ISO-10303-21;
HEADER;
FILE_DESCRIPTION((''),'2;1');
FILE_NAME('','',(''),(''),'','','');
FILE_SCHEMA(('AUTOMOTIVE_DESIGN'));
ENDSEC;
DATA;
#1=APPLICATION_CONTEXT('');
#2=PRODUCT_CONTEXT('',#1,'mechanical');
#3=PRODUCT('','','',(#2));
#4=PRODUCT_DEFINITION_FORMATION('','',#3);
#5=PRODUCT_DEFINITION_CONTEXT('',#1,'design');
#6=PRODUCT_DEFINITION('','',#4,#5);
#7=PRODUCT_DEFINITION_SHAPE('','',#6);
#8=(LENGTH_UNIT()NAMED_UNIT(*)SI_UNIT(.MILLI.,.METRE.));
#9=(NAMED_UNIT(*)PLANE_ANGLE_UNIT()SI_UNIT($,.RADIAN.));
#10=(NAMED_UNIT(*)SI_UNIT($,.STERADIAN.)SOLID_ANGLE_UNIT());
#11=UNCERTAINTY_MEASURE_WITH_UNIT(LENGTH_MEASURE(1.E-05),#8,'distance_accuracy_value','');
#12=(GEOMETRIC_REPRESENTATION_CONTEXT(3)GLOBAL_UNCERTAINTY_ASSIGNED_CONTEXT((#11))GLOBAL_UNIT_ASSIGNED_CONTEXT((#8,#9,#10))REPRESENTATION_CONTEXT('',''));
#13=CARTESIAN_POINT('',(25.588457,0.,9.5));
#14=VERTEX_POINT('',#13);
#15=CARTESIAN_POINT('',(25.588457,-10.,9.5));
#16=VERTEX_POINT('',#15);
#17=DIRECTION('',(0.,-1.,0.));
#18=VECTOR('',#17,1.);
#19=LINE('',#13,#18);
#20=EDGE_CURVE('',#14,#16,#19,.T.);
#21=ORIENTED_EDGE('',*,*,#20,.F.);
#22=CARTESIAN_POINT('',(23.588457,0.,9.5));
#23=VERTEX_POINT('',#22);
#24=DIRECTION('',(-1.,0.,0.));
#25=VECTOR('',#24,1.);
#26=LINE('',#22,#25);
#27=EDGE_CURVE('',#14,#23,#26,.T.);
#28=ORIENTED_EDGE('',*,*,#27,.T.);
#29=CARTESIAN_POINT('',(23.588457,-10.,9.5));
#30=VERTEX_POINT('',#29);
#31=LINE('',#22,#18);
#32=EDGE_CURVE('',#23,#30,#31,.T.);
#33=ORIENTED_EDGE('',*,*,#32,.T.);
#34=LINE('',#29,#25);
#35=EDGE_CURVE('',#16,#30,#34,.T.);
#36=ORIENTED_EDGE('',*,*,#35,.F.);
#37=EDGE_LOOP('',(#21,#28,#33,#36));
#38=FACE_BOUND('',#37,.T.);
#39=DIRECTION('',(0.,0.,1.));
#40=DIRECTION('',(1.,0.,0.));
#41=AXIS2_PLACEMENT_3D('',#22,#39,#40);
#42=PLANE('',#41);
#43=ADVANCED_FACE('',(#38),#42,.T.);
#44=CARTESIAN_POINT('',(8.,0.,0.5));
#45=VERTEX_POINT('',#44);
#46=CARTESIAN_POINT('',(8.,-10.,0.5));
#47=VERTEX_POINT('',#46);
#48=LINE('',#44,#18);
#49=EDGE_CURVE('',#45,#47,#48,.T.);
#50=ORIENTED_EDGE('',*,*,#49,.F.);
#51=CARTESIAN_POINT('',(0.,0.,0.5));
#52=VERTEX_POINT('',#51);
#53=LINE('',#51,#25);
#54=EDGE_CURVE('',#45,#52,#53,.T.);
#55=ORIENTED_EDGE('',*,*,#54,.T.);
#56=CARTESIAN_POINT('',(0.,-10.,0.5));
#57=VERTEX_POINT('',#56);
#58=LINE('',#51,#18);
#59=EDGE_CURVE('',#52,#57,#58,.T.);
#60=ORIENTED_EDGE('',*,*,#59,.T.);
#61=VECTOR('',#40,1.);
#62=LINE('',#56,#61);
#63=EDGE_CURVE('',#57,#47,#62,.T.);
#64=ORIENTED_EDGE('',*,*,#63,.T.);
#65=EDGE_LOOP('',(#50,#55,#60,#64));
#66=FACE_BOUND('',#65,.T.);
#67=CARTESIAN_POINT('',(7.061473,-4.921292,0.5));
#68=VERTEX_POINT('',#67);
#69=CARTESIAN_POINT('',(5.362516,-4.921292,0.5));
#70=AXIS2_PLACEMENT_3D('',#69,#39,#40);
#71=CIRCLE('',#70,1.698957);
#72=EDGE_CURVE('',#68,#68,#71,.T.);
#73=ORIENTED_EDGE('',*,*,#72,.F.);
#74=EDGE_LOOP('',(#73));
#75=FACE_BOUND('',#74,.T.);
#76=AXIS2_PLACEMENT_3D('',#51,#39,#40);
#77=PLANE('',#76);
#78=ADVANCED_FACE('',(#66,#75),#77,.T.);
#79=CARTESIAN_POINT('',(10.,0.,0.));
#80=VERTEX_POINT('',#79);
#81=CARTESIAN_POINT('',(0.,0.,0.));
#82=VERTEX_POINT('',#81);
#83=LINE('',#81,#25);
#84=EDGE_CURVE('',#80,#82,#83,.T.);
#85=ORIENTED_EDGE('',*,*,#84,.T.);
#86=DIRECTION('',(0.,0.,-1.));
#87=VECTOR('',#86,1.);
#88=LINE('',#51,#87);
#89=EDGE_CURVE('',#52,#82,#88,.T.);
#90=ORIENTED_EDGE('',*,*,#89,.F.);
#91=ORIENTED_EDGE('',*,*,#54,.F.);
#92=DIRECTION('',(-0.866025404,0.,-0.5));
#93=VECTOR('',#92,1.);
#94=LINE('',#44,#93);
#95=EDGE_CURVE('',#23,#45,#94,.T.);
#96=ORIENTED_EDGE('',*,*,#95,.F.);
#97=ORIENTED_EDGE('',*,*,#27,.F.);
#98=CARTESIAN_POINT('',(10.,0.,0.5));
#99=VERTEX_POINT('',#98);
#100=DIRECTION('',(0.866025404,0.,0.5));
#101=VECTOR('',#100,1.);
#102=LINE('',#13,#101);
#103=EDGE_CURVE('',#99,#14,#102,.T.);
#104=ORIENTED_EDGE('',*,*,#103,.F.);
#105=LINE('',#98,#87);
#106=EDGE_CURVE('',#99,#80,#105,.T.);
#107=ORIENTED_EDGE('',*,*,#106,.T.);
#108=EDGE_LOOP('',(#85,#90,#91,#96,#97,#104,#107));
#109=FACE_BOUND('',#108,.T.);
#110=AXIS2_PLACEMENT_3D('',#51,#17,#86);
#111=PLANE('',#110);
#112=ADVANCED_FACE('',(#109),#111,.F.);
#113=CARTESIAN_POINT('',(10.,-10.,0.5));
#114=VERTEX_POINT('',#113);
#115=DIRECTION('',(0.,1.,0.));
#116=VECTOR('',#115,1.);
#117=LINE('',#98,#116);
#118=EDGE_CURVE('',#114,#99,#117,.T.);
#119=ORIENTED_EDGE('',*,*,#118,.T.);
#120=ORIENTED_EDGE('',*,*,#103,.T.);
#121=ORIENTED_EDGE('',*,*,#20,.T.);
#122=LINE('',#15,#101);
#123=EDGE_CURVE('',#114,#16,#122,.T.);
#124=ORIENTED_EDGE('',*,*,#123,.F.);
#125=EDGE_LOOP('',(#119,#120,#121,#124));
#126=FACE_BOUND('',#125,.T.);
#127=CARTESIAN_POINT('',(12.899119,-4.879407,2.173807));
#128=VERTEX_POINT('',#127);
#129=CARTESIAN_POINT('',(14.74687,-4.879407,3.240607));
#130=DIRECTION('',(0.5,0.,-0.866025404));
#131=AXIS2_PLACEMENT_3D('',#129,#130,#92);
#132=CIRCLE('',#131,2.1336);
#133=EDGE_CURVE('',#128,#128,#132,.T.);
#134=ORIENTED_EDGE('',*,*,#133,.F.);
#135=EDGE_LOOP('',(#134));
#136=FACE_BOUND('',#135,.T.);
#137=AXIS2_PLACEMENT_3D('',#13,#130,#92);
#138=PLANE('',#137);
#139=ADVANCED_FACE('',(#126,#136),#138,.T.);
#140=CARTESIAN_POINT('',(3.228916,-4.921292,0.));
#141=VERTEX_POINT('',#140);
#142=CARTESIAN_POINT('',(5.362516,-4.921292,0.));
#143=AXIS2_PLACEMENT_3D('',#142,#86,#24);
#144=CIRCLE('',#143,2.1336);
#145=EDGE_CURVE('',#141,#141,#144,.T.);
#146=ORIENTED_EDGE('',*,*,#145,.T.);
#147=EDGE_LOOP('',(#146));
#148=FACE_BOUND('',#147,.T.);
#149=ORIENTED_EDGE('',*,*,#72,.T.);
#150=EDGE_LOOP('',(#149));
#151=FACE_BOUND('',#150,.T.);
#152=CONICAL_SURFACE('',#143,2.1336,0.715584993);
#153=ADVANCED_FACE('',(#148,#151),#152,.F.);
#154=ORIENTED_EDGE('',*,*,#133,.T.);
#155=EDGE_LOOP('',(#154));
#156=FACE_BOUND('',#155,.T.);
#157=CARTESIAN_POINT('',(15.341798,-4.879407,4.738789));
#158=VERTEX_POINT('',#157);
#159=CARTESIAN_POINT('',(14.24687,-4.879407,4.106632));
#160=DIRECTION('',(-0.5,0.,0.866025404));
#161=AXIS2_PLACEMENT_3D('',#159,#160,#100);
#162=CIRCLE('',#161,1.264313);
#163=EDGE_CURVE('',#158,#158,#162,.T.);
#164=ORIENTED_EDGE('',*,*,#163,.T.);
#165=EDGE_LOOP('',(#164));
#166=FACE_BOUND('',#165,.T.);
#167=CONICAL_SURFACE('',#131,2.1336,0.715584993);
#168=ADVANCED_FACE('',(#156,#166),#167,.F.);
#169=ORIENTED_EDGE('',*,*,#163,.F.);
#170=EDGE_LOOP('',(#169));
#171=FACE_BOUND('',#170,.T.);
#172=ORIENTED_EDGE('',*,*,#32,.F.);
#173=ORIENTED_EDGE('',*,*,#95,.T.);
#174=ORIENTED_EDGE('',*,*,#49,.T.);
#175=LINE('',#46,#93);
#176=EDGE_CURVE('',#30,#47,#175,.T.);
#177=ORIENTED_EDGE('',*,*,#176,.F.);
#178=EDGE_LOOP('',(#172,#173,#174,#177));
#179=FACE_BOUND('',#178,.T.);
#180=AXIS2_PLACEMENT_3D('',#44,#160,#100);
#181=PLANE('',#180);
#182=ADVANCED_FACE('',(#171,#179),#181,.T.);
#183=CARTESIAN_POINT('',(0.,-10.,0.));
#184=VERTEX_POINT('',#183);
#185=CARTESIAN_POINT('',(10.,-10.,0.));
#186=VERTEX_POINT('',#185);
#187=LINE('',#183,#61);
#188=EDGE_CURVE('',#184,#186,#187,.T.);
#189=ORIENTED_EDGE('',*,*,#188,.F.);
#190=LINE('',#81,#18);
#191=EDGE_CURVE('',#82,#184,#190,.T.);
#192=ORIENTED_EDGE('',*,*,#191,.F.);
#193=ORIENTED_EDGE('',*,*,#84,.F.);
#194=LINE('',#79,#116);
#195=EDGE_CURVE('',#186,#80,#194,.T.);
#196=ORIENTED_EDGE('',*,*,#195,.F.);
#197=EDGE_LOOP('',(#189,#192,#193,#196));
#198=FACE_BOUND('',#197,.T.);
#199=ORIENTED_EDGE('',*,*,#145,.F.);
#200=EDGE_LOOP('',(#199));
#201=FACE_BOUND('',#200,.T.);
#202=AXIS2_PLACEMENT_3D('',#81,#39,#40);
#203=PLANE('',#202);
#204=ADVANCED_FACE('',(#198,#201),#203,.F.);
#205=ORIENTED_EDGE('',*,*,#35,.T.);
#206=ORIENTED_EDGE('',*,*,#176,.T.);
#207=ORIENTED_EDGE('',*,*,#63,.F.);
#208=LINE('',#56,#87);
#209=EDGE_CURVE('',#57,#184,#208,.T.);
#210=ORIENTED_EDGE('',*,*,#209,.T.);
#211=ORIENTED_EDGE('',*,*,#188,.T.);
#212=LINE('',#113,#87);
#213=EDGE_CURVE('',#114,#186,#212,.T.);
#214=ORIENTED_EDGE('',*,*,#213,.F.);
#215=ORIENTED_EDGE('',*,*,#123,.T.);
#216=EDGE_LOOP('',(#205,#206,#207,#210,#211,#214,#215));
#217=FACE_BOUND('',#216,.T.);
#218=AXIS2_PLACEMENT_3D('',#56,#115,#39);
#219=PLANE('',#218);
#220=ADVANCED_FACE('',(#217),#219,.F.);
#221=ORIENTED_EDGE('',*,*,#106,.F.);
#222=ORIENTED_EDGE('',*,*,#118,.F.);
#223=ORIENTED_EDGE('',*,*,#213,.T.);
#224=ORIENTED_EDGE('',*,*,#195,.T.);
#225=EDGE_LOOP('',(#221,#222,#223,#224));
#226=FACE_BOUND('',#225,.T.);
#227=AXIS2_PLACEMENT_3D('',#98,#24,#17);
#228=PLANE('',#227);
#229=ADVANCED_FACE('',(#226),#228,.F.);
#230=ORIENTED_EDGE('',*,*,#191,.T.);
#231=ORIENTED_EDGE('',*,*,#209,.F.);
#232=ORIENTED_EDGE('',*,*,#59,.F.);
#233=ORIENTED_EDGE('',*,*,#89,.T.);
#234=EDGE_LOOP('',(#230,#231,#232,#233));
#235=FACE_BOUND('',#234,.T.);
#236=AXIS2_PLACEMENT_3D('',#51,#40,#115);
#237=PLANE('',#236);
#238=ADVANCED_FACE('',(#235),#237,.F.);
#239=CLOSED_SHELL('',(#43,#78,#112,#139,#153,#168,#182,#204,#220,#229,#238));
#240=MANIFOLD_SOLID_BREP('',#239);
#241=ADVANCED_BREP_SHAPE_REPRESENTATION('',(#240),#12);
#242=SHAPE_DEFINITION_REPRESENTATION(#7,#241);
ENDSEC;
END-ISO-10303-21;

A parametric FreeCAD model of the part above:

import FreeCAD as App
import Part
import Sketcher
from FreeCAD import Vector
Q = App.Units.Quantity

doc = App.newDocument("Part")
params = doc.addObject("Spreadsheet::Sheet", "Params")
for row, (alias, value) in enumerate([
    ("sketch1_width", "10 mm"),
    ("pad1_length", "0.5 mm"),
    ("sketch2_width", "2 mm"),
    ("sketch2_length", "18 mm"),
    ("pad2_length", "10 mm"),
    ("hole_diameter", "2.0574 mm"),
    ("hole_csink_diameter", "4.2672 mm"),
    ("hole2_diameter", "2.0574 mm"),
    ("hole2_csink_diameter", "4.2672 mm"),
], start=1):
    params.set(f"A{row}", alias)
    params.set(f"B{row}", "=" + value)
    params.setAlias(f"B{row}", alias)

body = doc.addObject("PartDesign::Body", "Body")

# Sketch on XY plane
sketch1 = body.newObject("Sketcher::SketchObject", "Sketch")
sketch1.AttachmentSupport = (doc.getObject("XY_Plane"), [""])
sketch1.MapMode = "FlatFace"
sketch1.addGeometry(Part.LineSegment(Vector(0, 0, 0), Vector(0, -10, 0)), False)
sketch1.addGeometry(Part.LineSegment(Vector(0, -10, 0), Vector(10, -10, 0)), False)
sketch1.addGeometry(Part.LineSegment(Vector(10, -10, 0), Vector(10, 0, 0)), False)
sketch1.addGeometry(Part.LineSegment(Vector(10, 0, 0), Vector(0, 0, 0)), False)
sketch1.addConstraint(Sketcher.Constraint("Coincident", 0, 2, 1, 1))
sketch1.addConstraint(Sketcher.Constraint("Coincident", 1, 2, 2, 1))
sketch1.addConstraint(Sketcher.Constraint("Coincident", 2, 2, 3, 1))
sketch1.addConstraint(Sketcher.Constraint("Coincident", 3, 2, 0, 1))
sketch1.addConstraint(Sketcher.Constraint("Vertical", 0))
sketch1.addConstraint(Sketcher.Constraint("Horizontal", 1))
sketch1.addConstraint(Sketcher.Constraint("Vertical", 2))
sketch1.addConstraint(Sketcher.Constraint("Horizontal", 3))
sketch1.addConstraint(Sketcher.Constraint("Coincident", 3, 2, -1, 1))
sketch1.addConstraint(Sketcher.Constraint("Equal", 3, 0))
sketch1.addConstraint(Sketcher.Constraint("DistanceX", 1, 1, 1, 2, 10.0))
sketch1.setExpression("Constraints[10]", "Params.sketch1_width")
pad1 = body.newObject("PartDesign::Pad", "Pad")
pad1.Profile = sketch1
pad1.setExpression("Length", "Params.pad1_length")

# Sketch on XZ plane
sketch2 = body.newObject("Sketcher::SketchObject", "Sketch001")
sketch2.AttachmentSupport = (doc.getObject("XZ_Plane"), [""])
sketch2.MapMode = "FlatFace"
sketch2.AttachmentOffset = App.Placement(Vector(0, 0, 10), App.Rotation())
sketch2.addGeometry(Part.LineSegment(Vector(23.588457, 9.5, 0), Vector(8, 0.5, 0)), False)
sketch2.addGeometry(Part.LineSegment(Vector(8, 0.5, 0), Vector(10, 0.5, 0)), False)
sketch2.addGeometry(Part.LineSegment(Vector(10, 0.5, 0), Vector(25.588457, 9.5, 0)), False)
sketch2.addGeometry(Part.LineSegment(Vector(25.588457, 9.5, 0), Vector(23.588457, 9.5, 0)), False)
sketch2.addConstraint(Sketcher.Constraint("Coincident", 0, 2, 1, 1))
sketch2.addConstraint(Sketcher.Constraint("Coincident", 1, 2, 2, 1))
sketch2.addConstraint(Sketcher.Constraint("Coincident", 2, 2, 3, 1))
sketch2.addConstraint(Sketcher.Constraint("Coincident", 3, 2, 0, 1))
sketch2.addConstraint(Sketcher.Constraint("Horizontal", 1))
sketch2.addConstraint(Sketcher.Constraint("Horizontal", 3))
sketch2.addConstraint(Sketcher.Constraint("Parallel", 0, 2))
sketch2.addConstraint(Sketcher.Constraint("DistanceX", 1, 1, 1, 2, 2.0))
sketch2.addConstraint(Sketcher.Constraint("Angle", 0, Q("-150 deg")))
sketch2.addConstraint(Sketcher.Constraint("Distance", 0, 18.0))
sketch2.addConstraint(Sketcher.Constraint("DistanceX", -1, 1, 0, 2, 8.0))
sketch2.addConstraint(Sketcher.Constraint("DistanceY", -1, 1, 0, 2, 0.5))
sketch2.setExpression("Constraints[7]", "Params.sketch2_width")
sketch2.setExpression("Constraints[9]", "Params.sketch2_length")
pad2 = body.newObject("PartDesign::Pad", "Pad001")
pad2.Profile = sketch2
pad2.setExpression("Length", "Params.pad2_length")
pad2.Reversed = True

# Sketch on XY plane
sketch3 = body.newObject("Sketcher::SketchObject", "Sketch002")
sketch3.AttachmentSupport = (doc.getObject("XY_Plane"), [""])
sketch3.MapMode = "FlatFace"
sketch3.addGeometry(Part.Circle(Vector(5.362516, -4.921292, 0), Vector(0, 0, 1), 1.0287), False)
sketch3.addConstraint(Sketcher.Constraint("Diameter", 0, 2.0574))
sketch3.addConstraint(Sketcher.Constraint("DistanceX", -1, 1, 0, 3, 5.362516))
sketch3.addConstraint(Sketcher.Constraint("DistanceY", 0, 3, -1, 1, 4.921292))
doc.recompute()
hole = body.newObject("PartDesign::Hole", "Hole")
hole.Profile = sketch3
hole.ThreadType = "None"
hole.setExpression("Diameter", "Params.hole_diameter")
hole.DepthType = "ThroughAll"
hole.HoleCutType = "Countersink"
hole.setExpression("HoleCutDiameter", "Params.hole_csink_diameter")
hole.HoleCutCountersinkAngle = 82
hole.Reversed = True

# Sketch on an angled plane
sketch4 = body.newObject("Sketcher::SketchObject", "Sketch003")
sketch4.Placement = App.Placement(Vector(2.283494, 0, -3.955127), App.Rotation(Vector(-0.866025404, 0, -0.5), Vector(0, 1, 0), Vector(0.5, 0, -0.866025404), "ZXY"))
sketch4.addGeometry(Part.Circle(Vector(-14.391468, -4.879407, 0), Vector(0, 0, 1), 1.0287), False)
sketch4.addConstraint(Sketcher.Constraint("Diameter", 0, 2.0574))
sketch4.addConstraint(Sketcher.Constraint("DistanceX", 0, 3, -1, 1, 14.391468))
sketch4.addConstraint(Sketcher.Constraint("DistanceY", 0, 3, -1, 1, 4.879407))
doc.recompute()
hole2 = body.newObject("PartDesign::Hole", "Hole001")
hole2.Profile = sketch4
hole2.ThreadType = "None"
hole2.setExpression("Diameter", "Params.hole2_diameter")
hole2.DepthType = "ThroughAll"
hole2.HoleCutType = "Countersink"
hole2.setExpression("HoleCutDiameter", "Params.hole2_csink_diameter")
hole2.HoleCutCountersinkAngle = 82

doc.recompute()
